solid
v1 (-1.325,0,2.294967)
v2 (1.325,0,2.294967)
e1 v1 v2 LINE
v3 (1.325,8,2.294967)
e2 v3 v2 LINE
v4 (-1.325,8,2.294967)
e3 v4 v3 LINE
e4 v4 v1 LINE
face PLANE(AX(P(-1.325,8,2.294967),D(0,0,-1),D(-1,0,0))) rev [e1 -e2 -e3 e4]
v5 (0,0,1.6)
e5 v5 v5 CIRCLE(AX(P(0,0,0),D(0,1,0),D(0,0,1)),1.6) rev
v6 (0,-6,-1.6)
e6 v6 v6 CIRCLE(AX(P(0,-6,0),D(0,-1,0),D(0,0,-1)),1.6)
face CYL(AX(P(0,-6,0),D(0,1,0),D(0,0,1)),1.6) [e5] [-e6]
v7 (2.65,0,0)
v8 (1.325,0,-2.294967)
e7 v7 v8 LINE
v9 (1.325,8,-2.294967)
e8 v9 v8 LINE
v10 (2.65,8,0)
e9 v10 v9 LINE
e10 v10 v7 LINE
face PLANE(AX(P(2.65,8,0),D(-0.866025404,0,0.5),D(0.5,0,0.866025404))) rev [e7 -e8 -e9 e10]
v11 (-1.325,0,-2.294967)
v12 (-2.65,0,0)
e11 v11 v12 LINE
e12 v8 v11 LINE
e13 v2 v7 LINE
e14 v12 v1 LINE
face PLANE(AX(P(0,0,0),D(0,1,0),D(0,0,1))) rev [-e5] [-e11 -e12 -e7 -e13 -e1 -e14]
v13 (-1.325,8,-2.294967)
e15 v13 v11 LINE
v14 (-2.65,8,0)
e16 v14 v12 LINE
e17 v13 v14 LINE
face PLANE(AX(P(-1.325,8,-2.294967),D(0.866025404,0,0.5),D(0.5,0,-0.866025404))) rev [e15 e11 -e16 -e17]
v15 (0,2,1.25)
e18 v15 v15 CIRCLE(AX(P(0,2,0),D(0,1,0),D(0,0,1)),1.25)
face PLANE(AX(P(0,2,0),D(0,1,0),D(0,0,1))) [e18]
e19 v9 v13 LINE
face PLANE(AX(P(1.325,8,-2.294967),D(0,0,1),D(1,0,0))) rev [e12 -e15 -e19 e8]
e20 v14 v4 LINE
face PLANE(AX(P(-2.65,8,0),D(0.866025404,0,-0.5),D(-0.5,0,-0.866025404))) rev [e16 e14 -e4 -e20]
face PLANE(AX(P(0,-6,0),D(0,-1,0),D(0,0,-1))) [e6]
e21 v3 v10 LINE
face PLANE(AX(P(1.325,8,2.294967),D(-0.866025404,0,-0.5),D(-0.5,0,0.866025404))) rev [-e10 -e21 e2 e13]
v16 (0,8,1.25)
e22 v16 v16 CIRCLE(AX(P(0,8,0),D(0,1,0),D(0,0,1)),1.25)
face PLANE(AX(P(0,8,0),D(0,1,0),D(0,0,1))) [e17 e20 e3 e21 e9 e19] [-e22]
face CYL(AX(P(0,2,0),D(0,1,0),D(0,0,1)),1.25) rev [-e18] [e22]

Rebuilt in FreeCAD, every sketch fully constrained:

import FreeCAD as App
import Part
import Sketcher

V = App.Vector
Q = App.Units.Quantity


def add_polygon(sketch, points):
    """Adds a closed chain of lines whose ends are joined by coincident constraints."""
    first, n = sketch.GeometryCount, len(points)
    for a, b in zip(points, points[1:] + points[:1]):
        sketch.addGeometry(Part.LineSegment(App.Vector(*a, 0), App.Vector(*b, 0)), False)
    for i in range(n):
        sketch.addConstraint(Sketcher.Constraint("Coincident", first + i, 2, first + (i + 1) % n, 1))

doc = App.newDocument("Part")
params = doc.addObject("Spreadsheet::Sheet", "Params")
for row, (alias, value) in enumerate([
    ("sketch1_width", "2.65 mm"),
    ("pad1_length", "8 mm"),
    ("sketch2_diameter", "3.2 mm"),
    ("pad2_length", "6 mm"),
    ("sketch3_diameter", "2.5 mm"),
    ("pocket1_length", "6 mm"),
], start=1):
    params.set(f"A{row}", alias)
    params.set(f"B{row}", "=" + value)
    params.setAlias(f"B{row}", alias)

body = doc.addObject("PartDesign::Body", "Body")

sketch1 = body.newObject("Sketcher::SketchObject", "Sketch")
sketch1.AttachmentSupport = (doc.getObject("XZ_Plane"), [""])
sketch1.MapMode = "FlatFace"
add_polygon(sketch1, [(1.3, 2.3), (2.6, 0), (1.3, -2.3), (-1.3, -2.3), (-2.6, 0), (-1.3, 2.3)])
sketch1.addConstraint(Sketcher.Constraint("Horizontal", 2))
sketch1.addConstraint(Sketcher.Constraint("Horizontal", 5))
sketch1.addConstraint(Sketcher.Constraint("Symmetric", 0, 2, 3, 2, -1, 1))
sketch1.addConstraint(Sketcher.Constraint("Symmetric", 1, 2, 4, 2, -1, 1))
sketch1.addConstraint(Sketcher.Constraint("PointOnObject", 0, 2, -1))
sketch1.addConstraint(Sketcher.Constraint("Parallel", 0, 3))
sketch1.addConstraint(Sketcher.Constraint("Vertical", 2, 2, 4, 2))
sketch1.addConstraint(Sketcher.Constraint("Angle", 0, Q("-60 deg")))
sketch1.addConstraint(Sketcher.Constraint("DistanceX", 2, 2, 2, 1, Q("2.65 mm")))
sketch1.addConstraint(Sketcher.Constraint("DistanceX", 3, 2, 0, 2, Q("5.3 mm")))
sketch1.setExpression("Constraints[14]", "Params.sketch1_width")
pad1 = body.newObject("PartDesign::Pad", "Pad")
pad1.Profile = sketch1
pad1.setExpression("Length", "Params.pad1_length")
pad1.Reversed = True

sketch2 = body.newObject("Sketcher::SketchObject", "Sketch001")
sketch2.AttachmentSupport = (doc.getObject("XZ_Plane"), [""])
sketch2.MapMode = "FlatFace"
sketch2.addGeometry(Part.Circle(V(0, 0, 0), V(0, 0, 1), 1.6), False)
sketch2.addConstraint(Sketcher.Constraint("Coincident", 0, 3, -1, 1))
sketch2.addConstraint(Sketcher.Constraint("Diameter", 0, Q("3.2 mm")))
sketch2.setExpression("Constraints[1]", "Params.sketch2_diameter")
pad2 = body.newObject("PartDesign::Pad", "Pad001")
pad2.Profile = sketch2
pad2.setExpression("Length", "Params.pad2_length")

sketch3 = body.newObject("Sketcher::SketchObject", "Sketch002")
sketch3.AttachmentSupport = (doc.getObject("XZ_Plane"), [""])
sketch3.MapMode = "FlatFace"
sketch3.AttachmentOffset = App.Placement(V(0, 0, -8), App.Rotation())
sketch3.addGeometry(Part.Circle(V(0, 0, 0), V(0, 0, 1), 1.2), False)
sketch3.addConstraint(Sketcher.Constraint("Coincident", 0, 3, -1, 1))
sketch3.addConstraint(Sketcher.Constraint("Diameter", 0, Q("2.5 mm")))
sketch3.setExpression("Constraints[1]", "Params.sketch3_diameter")
pocket1 = body.newObject("PartDesign::Pocket", "Pocket")
pocket1.Profile = sketch3
pocket1.setExpression("Length", "Params.pocket1_length")
pocket1.Reversed = True

doc.recompute()
